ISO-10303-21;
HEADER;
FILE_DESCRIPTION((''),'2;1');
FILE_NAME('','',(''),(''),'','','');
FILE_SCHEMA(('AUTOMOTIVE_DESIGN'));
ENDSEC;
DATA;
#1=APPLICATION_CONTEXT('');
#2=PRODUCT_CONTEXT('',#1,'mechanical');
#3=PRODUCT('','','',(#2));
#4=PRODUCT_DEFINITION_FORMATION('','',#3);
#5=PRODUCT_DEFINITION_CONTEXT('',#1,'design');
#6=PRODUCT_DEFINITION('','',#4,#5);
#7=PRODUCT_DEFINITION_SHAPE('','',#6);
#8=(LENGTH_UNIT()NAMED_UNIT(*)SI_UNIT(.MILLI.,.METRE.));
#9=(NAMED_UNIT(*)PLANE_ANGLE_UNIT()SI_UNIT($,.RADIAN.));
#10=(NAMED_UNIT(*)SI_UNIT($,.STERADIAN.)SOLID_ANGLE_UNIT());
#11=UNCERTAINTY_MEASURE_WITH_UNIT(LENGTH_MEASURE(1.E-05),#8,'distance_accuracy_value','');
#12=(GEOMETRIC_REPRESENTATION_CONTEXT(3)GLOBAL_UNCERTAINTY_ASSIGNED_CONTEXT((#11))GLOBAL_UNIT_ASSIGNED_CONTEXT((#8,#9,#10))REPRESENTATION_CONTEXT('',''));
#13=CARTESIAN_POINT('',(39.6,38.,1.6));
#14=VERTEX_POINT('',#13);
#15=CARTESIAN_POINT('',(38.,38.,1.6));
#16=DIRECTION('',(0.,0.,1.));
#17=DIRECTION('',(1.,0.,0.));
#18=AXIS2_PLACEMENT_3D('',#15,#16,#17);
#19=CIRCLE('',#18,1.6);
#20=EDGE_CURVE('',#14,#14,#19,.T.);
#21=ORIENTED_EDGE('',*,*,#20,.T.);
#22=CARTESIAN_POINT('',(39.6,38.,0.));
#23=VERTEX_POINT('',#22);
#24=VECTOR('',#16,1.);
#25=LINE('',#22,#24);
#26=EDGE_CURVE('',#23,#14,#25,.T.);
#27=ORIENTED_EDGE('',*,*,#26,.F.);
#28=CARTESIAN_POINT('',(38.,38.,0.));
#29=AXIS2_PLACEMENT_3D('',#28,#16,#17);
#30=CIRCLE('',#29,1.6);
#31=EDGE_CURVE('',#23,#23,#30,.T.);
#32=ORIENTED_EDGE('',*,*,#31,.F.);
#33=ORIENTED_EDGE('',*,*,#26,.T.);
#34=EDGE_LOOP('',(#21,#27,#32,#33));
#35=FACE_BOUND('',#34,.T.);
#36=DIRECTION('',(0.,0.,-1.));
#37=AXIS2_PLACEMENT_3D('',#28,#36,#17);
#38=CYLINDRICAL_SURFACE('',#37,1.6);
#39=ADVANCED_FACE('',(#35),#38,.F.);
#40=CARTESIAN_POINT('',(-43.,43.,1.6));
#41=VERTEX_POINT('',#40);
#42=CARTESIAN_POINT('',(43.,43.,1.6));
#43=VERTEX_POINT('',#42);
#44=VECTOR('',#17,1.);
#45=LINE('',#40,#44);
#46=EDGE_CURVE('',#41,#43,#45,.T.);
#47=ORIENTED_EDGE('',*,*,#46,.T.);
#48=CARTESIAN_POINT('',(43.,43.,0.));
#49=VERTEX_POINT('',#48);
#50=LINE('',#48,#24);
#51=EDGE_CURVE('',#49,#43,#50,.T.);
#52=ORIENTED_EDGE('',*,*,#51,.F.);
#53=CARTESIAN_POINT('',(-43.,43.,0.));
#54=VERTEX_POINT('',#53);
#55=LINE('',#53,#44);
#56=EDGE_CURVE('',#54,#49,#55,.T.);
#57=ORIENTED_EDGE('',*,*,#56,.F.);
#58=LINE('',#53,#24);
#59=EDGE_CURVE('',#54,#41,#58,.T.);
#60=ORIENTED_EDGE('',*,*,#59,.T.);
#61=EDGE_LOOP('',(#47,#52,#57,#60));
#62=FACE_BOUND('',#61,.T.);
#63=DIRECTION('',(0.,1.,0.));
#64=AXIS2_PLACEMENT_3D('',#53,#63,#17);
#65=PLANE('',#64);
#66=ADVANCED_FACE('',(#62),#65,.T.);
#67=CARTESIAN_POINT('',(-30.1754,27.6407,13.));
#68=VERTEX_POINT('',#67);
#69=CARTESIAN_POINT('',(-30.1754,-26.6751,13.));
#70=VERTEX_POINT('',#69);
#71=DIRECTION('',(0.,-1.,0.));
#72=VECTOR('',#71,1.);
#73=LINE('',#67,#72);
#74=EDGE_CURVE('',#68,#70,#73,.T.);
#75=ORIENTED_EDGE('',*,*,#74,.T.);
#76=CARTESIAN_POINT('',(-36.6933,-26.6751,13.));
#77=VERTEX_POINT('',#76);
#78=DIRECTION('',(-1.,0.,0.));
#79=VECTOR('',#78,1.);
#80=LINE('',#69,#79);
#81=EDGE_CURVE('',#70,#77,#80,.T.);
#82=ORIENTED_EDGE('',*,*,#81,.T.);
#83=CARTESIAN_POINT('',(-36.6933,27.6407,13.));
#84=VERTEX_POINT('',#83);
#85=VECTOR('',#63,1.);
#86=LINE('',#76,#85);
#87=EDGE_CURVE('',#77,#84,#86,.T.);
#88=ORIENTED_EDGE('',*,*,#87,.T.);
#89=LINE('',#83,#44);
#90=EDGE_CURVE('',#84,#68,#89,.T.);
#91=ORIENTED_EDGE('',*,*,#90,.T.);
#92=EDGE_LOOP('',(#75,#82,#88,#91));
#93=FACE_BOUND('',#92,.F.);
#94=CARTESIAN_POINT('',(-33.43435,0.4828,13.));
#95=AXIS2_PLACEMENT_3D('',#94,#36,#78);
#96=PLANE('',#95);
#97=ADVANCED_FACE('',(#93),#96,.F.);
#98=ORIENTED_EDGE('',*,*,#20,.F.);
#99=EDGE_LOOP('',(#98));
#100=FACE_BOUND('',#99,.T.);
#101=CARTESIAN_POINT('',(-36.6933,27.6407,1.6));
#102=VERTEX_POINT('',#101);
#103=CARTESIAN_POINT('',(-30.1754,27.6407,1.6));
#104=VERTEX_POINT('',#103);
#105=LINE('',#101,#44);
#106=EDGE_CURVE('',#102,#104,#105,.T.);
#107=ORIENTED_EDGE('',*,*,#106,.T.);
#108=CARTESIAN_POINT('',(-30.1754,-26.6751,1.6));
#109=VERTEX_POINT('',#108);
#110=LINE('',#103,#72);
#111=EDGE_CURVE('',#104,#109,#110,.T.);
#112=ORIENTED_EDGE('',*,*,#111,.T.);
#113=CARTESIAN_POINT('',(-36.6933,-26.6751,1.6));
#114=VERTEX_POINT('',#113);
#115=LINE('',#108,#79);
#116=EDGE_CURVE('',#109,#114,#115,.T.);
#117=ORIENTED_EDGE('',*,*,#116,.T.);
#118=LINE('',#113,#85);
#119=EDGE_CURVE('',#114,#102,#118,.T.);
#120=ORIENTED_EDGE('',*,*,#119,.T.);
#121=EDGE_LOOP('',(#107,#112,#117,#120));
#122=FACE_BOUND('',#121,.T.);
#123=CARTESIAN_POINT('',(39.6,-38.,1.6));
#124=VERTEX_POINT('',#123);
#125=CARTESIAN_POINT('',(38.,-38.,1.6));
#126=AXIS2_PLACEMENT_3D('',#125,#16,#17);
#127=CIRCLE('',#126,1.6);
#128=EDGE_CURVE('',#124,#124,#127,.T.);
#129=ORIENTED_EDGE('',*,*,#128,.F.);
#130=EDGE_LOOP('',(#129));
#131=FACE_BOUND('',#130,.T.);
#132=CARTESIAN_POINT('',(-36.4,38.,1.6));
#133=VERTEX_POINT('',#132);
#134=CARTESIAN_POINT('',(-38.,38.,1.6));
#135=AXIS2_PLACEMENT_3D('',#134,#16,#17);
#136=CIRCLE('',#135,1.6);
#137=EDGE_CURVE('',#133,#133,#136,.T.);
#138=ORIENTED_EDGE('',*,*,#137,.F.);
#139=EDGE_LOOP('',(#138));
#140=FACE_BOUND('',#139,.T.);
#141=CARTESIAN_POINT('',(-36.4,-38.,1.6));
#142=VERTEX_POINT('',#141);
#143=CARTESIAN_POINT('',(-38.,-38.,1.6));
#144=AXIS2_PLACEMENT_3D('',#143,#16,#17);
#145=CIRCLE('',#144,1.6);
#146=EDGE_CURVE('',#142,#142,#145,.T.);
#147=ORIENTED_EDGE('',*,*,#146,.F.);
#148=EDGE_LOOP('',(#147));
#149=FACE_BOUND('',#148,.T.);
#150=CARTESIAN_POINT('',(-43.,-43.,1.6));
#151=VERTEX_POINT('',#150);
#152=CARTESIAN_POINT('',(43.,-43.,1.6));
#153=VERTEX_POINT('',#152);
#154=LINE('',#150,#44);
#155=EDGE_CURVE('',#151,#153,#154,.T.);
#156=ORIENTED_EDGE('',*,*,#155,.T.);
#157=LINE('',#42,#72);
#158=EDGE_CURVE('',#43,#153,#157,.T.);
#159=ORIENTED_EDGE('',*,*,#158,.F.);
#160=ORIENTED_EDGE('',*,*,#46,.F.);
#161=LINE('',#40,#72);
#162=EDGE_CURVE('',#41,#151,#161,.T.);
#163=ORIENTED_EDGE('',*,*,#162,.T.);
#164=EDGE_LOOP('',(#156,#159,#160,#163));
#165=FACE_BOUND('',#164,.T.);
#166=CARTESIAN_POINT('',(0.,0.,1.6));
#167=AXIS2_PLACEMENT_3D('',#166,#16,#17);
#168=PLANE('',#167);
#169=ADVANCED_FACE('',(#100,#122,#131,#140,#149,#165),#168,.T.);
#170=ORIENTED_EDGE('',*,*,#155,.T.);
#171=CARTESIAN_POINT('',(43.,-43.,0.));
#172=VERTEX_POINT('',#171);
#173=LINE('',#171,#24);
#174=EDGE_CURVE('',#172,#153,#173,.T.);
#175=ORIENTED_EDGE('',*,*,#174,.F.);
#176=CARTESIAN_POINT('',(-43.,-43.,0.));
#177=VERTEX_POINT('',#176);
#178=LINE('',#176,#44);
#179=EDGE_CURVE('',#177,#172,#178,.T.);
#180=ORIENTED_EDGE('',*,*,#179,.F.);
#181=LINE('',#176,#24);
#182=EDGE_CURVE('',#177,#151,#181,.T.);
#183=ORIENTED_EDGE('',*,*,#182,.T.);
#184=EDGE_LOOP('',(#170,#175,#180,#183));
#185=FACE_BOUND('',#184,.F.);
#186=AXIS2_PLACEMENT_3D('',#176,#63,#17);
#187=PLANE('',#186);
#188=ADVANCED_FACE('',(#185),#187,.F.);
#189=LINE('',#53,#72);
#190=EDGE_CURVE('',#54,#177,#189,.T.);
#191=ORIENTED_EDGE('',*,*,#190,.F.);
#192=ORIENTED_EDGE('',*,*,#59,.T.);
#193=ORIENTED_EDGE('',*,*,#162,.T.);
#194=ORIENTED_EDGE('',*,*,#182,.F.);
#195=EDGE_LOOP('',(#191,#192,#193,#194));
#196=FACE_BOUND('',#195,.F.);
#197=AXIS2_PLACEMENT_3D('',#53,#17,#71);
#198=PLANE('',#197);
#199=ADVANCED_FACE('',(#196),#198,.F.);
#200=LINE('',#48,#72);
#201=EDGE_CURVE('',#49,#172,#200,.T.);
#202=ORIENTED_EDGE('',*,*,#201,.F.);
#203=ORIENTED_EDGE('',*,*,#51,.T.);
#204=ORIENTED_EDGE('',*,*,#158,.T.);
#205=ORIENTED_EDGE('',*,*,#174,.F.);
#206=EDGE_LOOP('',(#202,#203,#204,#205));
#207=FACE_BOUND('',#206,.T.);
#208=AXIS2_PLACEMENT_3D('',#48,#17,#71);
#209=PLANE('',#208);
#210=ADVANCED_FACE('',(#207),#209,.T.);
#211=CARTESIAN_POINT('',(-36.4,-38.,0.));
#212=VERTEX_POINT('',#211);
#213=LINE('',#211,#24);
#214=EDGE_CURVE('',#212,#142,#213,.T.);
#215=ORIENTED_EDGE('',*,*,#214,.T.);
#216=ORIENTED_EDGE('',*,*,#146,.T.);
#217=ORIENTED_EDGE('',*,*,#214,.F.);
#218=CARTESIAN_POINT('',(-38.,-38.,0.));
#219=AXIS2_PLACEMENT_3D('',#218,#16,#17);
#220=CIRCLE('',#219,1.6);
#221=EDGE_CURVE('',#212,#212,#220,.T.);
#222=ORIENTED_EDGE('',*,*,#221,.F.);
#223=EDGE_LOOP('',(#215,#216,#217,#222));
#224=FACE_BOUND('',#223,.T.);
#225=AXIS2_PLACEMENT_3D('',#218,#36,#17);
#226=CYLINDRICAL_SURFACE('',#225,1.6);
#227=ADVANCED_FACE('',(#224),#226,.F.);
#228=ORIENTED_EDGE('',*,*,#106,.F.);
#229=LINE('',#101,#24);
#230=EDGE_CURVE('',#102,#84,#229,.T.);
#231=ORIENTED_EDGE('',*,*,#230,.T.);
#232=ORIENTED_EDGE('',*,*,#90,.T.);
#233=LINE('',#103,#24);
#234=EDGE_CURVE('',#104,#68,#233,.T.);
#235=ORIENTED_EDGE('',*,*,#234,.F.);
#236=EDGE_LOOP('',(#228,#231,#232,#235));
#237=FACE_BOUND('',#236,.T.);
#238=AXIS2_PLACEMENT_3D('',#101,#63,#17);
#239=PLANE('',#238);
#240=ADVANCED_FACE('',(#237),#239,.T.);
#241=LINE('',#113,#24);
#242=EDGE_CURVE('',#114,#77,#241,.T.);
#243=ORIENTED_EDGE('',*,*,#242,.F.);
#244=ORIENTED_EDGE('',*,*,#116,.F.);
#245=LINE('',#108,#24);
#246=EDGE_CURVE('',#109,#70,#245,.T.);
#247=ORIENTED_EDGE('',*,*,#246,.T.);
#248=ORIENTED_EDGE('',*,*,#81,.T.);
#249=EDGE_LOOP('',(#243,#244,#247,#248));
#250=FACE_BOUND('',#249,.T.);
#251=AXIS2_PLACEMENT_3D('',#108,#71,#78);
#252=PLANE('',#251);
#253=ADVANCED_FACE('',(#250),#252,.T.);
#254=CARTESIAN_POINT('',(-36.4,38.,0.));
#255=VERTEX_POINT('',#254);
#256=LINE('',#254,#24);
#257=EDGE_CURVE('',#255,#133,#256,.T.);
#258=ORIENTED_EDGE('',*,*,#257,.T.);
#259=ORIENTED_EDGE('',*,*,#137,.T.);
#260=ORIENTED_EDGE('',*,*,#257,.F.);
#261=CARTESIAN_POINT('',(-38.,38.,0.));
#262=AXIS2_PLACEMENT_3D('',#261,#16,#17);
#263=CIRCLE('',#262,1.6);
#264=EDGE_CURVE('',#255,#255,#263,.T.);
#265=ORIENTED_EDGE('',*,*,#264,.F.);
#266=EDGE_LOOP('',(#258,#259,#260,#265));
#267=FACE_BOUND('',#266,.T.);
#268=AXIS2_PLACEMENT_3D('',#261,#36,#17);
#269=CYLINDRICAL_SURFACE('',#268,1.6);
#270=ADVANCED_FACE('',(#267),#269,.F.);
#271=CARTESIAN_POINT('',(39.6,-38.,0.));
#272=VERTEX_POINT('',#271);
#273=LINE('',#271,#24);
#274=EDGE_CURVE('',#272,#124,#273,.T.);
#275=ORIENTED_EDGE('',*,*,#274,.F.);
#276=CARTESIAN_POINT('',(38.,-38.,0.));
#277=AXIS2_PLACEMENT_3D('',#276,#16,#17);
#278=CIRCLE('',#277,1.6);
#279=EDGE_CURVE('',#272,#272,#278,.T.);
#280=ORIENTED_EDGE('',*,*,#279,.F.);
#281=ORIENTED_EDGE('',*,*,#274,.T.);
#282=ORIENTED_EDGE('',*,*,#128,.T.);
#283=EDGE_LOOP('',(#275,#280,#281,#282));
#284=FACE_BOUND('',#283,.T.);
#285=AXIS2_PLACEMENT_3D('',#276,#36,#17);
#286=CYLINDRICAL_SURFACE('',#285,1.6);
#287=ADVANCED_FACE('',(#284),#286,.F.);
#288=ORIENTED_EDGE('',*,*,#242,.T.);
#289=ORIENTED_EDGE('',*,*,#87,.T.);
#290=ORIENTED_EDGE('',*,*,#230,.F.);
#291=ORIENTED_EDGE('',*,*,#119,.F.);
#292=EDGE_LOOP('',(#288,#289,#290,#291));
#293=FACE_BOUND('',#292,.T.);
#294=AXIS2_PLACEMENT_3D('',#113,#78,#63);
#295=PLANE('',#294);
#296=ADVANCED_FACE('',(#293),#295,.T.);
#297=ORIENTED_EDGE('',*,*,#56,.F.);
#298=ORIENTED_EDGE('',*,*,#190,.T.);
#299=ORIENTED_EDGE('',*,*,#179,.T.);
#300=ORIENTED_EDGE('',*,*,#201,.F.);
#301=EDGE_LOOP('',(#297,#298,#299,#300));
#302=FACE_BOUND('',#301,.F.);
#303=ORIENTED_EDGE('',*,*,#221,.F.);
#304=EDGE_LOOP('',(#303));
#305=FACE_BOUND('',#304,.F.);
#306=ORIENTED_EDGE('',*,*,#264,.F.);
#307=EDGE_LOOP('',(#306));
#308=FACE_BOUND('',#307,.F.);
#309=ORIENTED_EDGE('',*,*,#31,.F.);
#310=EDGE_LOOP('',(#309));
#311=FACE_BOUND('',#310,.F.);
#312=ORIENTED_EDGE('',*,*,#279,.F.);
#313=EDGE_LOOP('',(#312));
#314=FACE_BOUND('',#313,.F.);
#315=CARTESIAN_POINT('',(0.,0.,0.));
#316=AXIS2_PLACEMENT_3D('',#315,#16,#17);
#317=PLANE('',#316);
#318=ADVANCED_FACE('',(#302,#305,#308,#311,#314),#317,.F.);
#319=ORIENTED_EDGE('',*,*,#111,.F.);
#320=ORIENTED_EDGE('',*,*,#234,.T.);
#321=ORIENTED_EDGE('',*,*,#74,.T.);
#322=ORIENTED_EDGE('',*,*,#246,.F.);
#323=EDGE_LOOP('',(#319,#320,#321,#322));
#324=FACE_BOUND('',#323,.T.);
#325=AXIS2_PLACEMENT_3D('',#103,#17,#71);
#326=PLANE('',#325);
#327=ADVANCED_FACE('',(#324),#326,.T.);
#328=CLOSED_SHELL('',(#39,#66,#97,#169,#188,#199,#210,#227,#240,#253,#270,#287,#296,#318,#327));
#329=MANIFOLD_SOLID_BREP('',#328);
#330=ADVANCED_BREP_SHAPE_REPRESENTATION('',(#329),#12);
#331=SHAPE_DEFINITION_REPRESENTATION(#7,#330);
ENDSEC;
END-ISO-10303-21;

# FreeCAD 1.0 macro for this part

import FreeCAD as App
import Part
import Sketcher

V = App.Vector
Q = App.Units.Quantity

doc = App.newDocument("Part")
body = doc.addObject("PartDesign::Body", "Body")

# Sketch on XY plane
sketch1 = body.newObject("Sketcher::SketchObject", "Sketch")
sketch1.AttachmentSupport = (doc.getObject("XY_Plane"), [""])
sketch1.MapMode = "FlatFace"
sketch1.addGeometry(Part.LineSegment(V(-43, 43, 0), V(-43, -43, 0)), False)
sketch1.addGeometry(Part.LineSegment(V(-43, -43, 0), V(43, -43, 0)), False)
sketch1.addGeometry(Part.LineSegment(V(43, -43, 0), V(43, 43, 0)), False)
sketch1.addGeometry(Part.LineSegment(V(43, 43, 0), V(-43, 43, 0)), False)
sketch1.addGeometry(Part.Circle(V(-38, -38, 0), V(0, 0, 1), 1.6), False)
sketch1.addGeometry(Part.Circle(V(38, -38, 0), V(0, 0, 1), 1.6), False)
sketch1.addGeometry(Part.Circle(V(-38, 38, 0), V(0, 0, 1), 1.6), False)
sketch1.addGeometry(Part.Circle(V(38, 38, 0), V(0, 0, 1), 1.6), False)
sketch1.addConstraint(Sketcher.Constraint("Coincident", 0, 2, 1, 1))
sketch1.addConstraint(Sketcher.Constraint("Coincident", 1, 2, 2, 1))
sketch1.addConstraint(Sketcher.Constraint("Coincident", 2, 2, 3, 1))
sketch1.addConstraint(Sketcher.Constraint("Coincident", 3, 2, 0, 1))
sketch1.addConstraint(Sketcher.Constraint("Vertical", 0))
sketch1.addConstraint(Sketcher.Constraint("Horizontal", 1))
sketch1.addConstraint(Sketcher.Constraint("Vertical", 2))
sketch1.addConstraint(Sketcher.Constraint("Horizontal", 3))
sketch1.addConstraint(Sketcher.Constraint("Equal", 4, 5))
sketch1.addConstraint(Sketcher.Constraint("Equal", 5, 6))
sketch1.addConstraint(Sketcher.Constraint("Equal", 6, 7))
sketch1.addConstraint(Sketcher.Constraint("Symmetric", 5, 3, 6, 3, -1, 1))
sketch1.addConstraint(Sketcher.Constraint("Symmetric", 4, 3, 7, 3, -1, 1))
sketch1.addConstraint(Sketcher.Constraint("Symmetric", 0, 2, 2, 2, -1, 1))
sketch1.addConstraint(Sketcher.Constraint("Symmetric", 4, 3, 5, 3, -2))
sketch1.addConstraint(Sketcher.Constraint("Equal", 3, 0))
sketch1.addConstraint(Sketcher.Constraint("Diameter", 4, Q("3.2 mm")))
sketch1.addConstraint(Sketcher.Constraint("DistanceX", 1, 1, 1, 2, Q("86 mm")))
sketch1.addConstraint(Sketcher.Constraint("DistanceX", 4, 3, -1, 1, Q("38 mm")))
sketch1.addConstraint(Sketcher.Constraint("DistanceY", 4, 3, -1, 1, Q("38 mm")))
pad1 = body.newObject("PartDesign::Pad", "Pad")
pad1.Profile = sketch1
pad1.Length = 1.6

# Sketch on XY plane
sketch2 = body.newObject("Sketcher::SketchObject", "Sketch001")
sketch2.AttachmentSupport = (doc.getObject("XY_Plane"), [""])
sketch2.MapMode = "FlatFace"
sketch2.AttachmentOffset = App.Placement(V(0, 0, 1.6), App.Rotation())
sketch2.addGeometry(Part.LineSegment(V(-30, 28, 0), V(-37, 28, 0)), False)
sketch2.addGeometry(Part.LineSegment(V(-37, 28, 0), V(-37, -27, 0)), False)
sketch2.addGeometry(Part.LineSegment(V(-37, -27, 0), V(-30, -27, 0)), False)
sketch2.addGeometry(Part.LineSegment(V(-30, -27, 0), V(-30, 28, 0)), False)
sketch2.addConstraint(Sketcher.Constraint("Coincident", 0, 2, 1, 1))
sketch2.addConstraint(Sketcher.Constraint("Coincident", 1, 2, 2, 1))
sketch2.addConstraint(Sketcher.Constraint("Coincident", 2, 2, 3, 1))
sketch2.addConstraint(Sketcher.Constraint("Coincident", 3, 2, 0, 1))
sketch2.addConstraint(Sketcher.Constraint("Horizontal", 0))
sketch2.addConstraint(Sketcher.Constraint("Vertical", 1))
sketch2.addConstraint(Sketcher.Constraint("Horizontal", 2))
sketch2.addConstraint(Sketcher.Constraint("Vertical", 3))
sketch2.addConstraint(Sketcher.Constraint("DistanceX", 0, 2, 0, 1, Q("6.518 mm")))
sketch2.addConstraint(Sketcher.Constraint("DistanceY", 1, 2, 1, 1, Q("54.3158 mm")))
sketch2.addConstraint(Sketcher.Constraint("DistanceY", 1, 2, -1, 1, Q("26.675 mm")))
sketch2.addConstraint(Sketcher.Constraint("DistanceX", 0, 2, -1, 1, Q("36.6933 mm")))
pad2 = body.newObject("PartDesign::Pad", "Pad001")
pad2.Profile = sketch2
pad2.Length = 11.4

doc.recompute()
